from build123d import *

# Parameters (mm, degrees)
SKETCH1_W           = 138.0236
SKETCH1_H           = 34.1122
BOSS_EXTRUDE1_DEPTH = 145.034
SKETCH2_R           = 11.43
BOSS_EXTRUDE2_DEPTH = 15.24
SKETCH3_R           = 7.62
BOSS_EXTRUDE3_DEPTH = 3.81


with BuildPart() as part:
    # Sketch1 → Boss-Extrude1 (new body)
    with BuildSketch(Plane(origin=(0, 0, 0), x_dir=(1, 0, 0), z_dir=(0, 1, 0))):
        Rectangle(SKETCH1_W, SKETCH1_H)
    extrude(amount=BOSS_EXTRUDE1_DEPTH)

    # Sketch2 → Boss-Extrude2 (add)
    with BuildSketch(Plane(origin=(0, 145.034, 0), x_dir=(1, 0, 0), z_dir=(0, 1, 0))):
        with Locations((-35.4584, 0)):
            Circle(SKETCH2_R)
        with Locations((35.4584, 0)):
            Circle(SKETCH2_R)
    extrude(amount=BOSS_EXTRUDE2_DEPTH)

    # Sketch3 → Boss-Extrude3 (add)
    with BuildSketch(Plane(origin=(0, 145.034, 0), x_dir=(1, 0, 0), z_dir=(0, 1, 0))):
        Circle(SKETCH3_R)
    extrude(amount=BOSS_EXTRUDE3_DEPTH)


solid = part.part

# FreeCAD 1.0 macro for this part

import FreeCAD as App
import Part
import Sketcher
Q = App.Units.Quantity


def add_polygon(sketch, points):
    """Adds a closed chain of lines whose ends are joined by coincident constraints."""
    first, n = sketch.GeometryCount, len(points)
    for a, b in zip(points, points[1:] + points[:1]):
        sketch.addGeometry(Part.LineSegment(App.Vector(*a, 0), App.Vector(*b, 0)), False)
    for i in range(n):
        sketch.addConstraint(Sketcher.Constraint("Coincident", first + i, 2, first + (i + 1) % n, 1))

doc = App.newDocument("Part")
body = doc.addObject("PartDesign::Body", "Body")

# Sketch on XZ plane
sketch1 = body.newObject("Sketcher::SketchObject", "Sketch")
sketch1.AttachmentSupport = (doc.getObject("XZ_Plane"), [""])
sketch1.MapMode = "FlatFace"
add_polygon(sketch1, [(-69, -17), (-69, 17), (69, 17), (69, -17)])  # lines 0-3
sketch1.addConstraint(Sketcher.Constraint("Vertical", 0))
sketch1.addConstraint(Sketcher.Constraint("Horizontal", 1))
sketch1.addConstraint(Sketcher.Constraint("Vertical", 2))
sketch1.addConstraint(Sketcher.Constraint("Horizontal", 3))
sketch1.addConstraint(Sketcher.Constraint("Symmetric", 0, 2, 2, 2, -1, 1))
sketch1.addConstraint(Sketcher.Constraint("DistanceX", 1, 1, 1, 2, Q("5.434 in")))
sketch1.addConstraint(Sketcher.Constraint("DistanceY", 0, 1, 0, 2, Q("1.343 in")))
pad1 = body.newObject("PartDesign::Pad", "Pad")
pad1.Profile = sketch1
pad1.Length = Q("5.71 in")
pad1.Reversed = True

# Sketch on XZ plane
sketch2 = body.newObject("Sketcher::SketchObject", "Sketch001")
sketch2.AttachmentSupport = (doc.getObject("XZ_Plane"), [""])
sketch2.MapMode = "FlatFace"
sketch2.AttachmentOffset = App.Placement(App.Vector(0, 0, -5.71 * 25.4), App.Rotation())
sketch2.addGeometry(Part.Circle(App.Vector(-35, 0, 0), App.Vector(0, 0, 1), 11), False)
sketch2.addGeometry(Part.Circle(App.Vector(35, 0, 0), App.Vector(0, 0, 1), 11), False)
sketch2.addConstraint(Sketcher.Constraint("Equal", 0, 1))
sketch2.addConstraint(Sketcher.Constraint("Symmetric", 0, 3, 1, 3, -1, 1))
sketch2.addConstraint(Sketcher.Constraint("PointOnObject", 0, 3, -1))
sketch2.addConstraint(Sketcher.Constraint("Diameter", 0, Q("0.9 in")))
sketch2.addConstraint(Sketcher.Constraint("DistanceX", 0, 3, -1, 1, Q("1.396 in")))
pad2 = body.newObject("PartDesign::Pad", "Pad001")
pad2.Profile = sketch2
pad2.Length = Q("0.6 in")
pad2.Reversed = True

# Sketch on XZ plane
sketch3 = body.newObject("Sketcher::SketchObject", "Sketch002")
sketch3.AttachmentSupport = (doc.getObject("XZ_Plane"), [""])
sketch3.MapMode = "FlatFace"
sketch3.AttachmentOffset = App.Placement(App.Vector(0, 0, -5.71 * 25.4), App.Rotation())
sketch3.addGeometry(Part.Circle(App.Vector(0, 0, 0), App.Vector(0, 0, 1), 8), False)
sketch3.addConstraint(Sketcher.Constraint("Coincident", 0, 3, -1, 1))
sketch3.addConstraint(Sketcher.Constraint("Diameter", 0, Q("0.6 in")))
pad3 = body.newObject("PartDesign::Pad", "Pad002")
pad3.Profile = sketch3
pad3.Length = Q("0.15 in")
pad3.Reversed = True

doc.recompute()
